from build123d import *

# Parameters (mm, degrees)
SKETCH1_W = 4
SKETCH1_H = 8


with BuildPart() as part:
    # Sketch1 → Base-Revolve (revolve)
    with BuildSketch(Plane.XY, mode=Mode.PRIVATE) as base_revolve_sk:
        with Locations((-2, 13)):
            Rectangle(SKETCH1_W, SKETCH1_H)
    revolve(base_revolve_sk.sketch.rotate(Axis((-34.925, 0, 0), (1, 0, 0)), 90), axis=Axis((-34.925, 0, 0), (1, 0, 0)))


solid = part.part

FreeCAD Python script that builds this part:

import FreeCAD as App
import Part
import Sketcher


def add_polygon(sketch, points):
    """Adds a closed chain of lines whose ends are joined by coincident constraints."""
    first, n = sketch.GeometryCount, len(points)
    for a, b in zip(points, points[1:] + points[:1]):
        sketch.addGeometry(Part.LineSegment(App.Vector(*a, 0), App.Vector(*b, 0)), False)
    for i in range(n):
        sketch.addConstraint(Sketcher.Constraint("Coincident", first + i, 2, first + (i + 1) % n, 1))

doc = App.newDocument("Part")
body = doc.addObject("PartDesign::Body", "Body")

# Sketch on XY plane
sketch1 = body.newObject("Sketcher::SketchObject", "Sketch")
sketch1.AttachmentSupport = (doc.getObject("XY_Plane"), [""])
sketch1.MapMode = "FlatFace"
add_polygon(sketch1, [(-4, 17), (-4, 9), (0, 9), (0, 17)])  # lines 0-3
sketch1.addConstraint([
    Sketcher.Constraint("Vertical", 0),
    Sketcher.Constraint("Horizontal", 1),
    Sketcher.Constraint("Vertical", 2),
    Sketcher.Constraint("Horizontal", 3),
    Sketcher.Constraint("PointOnObject", 1, 2, -2),
    Sketcher.Constraint("DistanceX", 1, 1, 1, 2, 4.0),
    Sketcher.Constraint("DistanceY", 0, 2, 0, 1, 8.0),
    Sketcher.Constraint("DistanceY", -1, 1, 0, 2, 9.0),
])
revolution = body.newObject("PartDesign::Revolution", "Revolution")
revolution.Profile = sketch1
revolution.ReferenceAxis = (sketch1, ["H_Axis"])
revolution.Angle = 360

doc.recompute()
